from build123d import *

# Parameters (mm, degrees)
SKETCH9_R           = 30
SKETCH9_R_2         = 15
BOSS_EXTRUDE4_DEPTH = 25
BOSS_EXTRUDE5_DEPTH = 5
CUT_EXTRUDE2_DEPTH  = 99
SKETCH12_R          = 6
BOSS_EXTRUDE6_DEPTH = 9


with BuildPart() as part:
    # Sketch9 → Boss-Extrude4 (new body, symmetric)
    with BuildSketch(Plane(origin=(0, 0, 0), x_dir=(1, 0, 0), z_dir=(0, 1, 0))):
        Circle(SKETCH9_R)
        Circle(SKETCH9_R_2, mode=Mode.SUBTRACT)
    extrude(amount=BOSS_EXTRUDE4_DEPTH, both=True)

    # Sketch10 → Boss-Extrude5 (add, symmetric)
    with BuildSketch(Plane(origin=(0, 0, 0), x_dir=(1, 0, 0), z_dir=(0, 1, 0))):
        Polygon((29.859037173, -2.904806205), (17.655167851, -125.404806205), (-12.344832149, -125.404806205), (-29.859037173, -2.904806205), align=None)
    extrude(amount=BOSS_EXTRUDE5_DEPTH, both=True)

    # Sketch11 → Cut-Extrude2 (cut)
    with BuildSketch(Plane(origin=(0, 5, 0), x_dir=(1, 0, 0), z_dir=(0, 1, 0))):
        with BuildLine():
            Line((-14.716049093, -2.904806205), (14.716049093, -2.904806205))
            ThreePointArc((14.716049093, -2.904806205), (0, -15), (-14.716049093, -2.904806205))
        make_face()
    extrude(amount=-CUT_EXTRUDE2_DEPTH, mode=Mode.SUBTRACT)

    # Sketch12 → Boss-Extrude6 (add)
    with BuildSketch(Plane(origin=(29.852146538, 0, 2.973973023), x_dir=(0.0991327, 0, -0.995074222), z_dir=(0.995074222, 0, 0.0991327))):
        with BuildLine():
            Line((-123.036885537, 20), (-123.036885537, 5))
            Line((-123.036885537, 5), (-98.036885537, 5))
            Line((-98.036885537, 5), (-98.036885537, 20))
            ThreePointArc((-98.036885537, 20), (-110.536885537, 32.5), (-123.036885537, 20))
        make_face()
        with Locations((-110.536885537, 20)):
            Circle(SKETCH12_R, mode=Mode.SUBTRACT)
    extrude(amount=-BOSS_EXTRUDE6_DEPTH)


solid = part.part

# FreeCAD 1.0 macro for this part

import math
import FreeCAD as App
import Part
import Sketcher

V = App.Vector
Q = App.Units.Quantity


def add_polygon(sketch, points):
    """Adds a closed chain of lines whose ends are joined by coincident constraints."""
    first, n = sketch.GeometryCount, len(points)
    for a, b in zip(points, points[1:] + points[:1]):
        sketch.addGeometry(Part.LineSegment(App.Vector(*a, 0), App.Vector(*b, 0)), False)
    for i in range(n):
        sketch.addConstraint(Sketcher.Constraint("Coincident", first + i, 2, first + (i + 1) % n, 1))

doc = App.newDocument("Part")
params = doc.addObject("Spreadsheet::Sheet", "Params")
for row, (alias, value) in enumerate([
    ("sketch1_diameter", "60 mm"),
    ("sketch1_diameter2", "30 mm"),
    ("pad1_length", "50 mm"),
    ("sketch2_width", "30 mm"),
    ("pad2_length", "10 mm"),
    ("sketch3_radius", "15 mm"),
    ("pocket1_length", "99 mm"),
    ("sketch4_diameter", "12 mm"),
    ("sketch4_radius", "12.5 mm"),
    ("sketch4_height", "15 mm"),
    ("pad3_length", "9 mm"),
], start=1):
    params.set(f"A{row}", alias)
    params.set(f"B{row}", "=" + value)
    params.setAlias(f"B{row}", alias)

body = doc.addObject("PartDesign::Body", "Body")

sketch1 = body.newObject("Sketcher::SketchObject", "Sketch")
sketch1.AttachmentSupport = (doc.getObject("XZ_Plane"), [""])
sketch1.MapMode = "FlatFace"
sketch1.addGeometry([
    Part.Circle(V(0, 0, 0), V(0, 0, 1), 30),
    Part.Circle(V(0, 0, 0), V(0, 0, 1), 15),
], False)
sketch1.addConstraint([
    Sketcher.Constraint("Coincident", 0, 3, -1, 1),
    Sketcher.Constraint("Coincident", 1, 3, -1, 1),
    Sketcher.Constraint("Diameter", 0, Q("60 mm")),
    Sketcher.Constraint("Diameter", 1, Q("30 mm")),
])
sketch1.setExpression("Constraints[2]", "Params.sketch1_diameter")
sketch1.setExpression("Constraints[3]", "Params.sketch1_diameter2")
pad1 = body.newObject("PartDesign::Pad", "Pad")
pad1.Profile = sketch1
pad1.setExpression("Length", "Params.pad1_length")
pad1.Midplane = True

sketch2 = body.newObject("Sketcher::SketchObject", "Sketch001")
sketch2.AttachmentSupport = (doc.getObject("XZ_Plane"), [""])
sketch2.MapMode = "FlatFace"
add_polygon(sketch2, [(18, 125), (30, 3), (-30, 3), (-12, 125)])
sketch2.addConstraint([
    Sketcher.Constraint("Horizontal", 1),
    Sketcher.Constraint("Horizontal", 3),
    Sketcher.Constraint("DistanceX", 3, 1, 3, 2, Q("30 mm")),
    Sketcher.Constraint("DistanceY", 1, 2, 2, 2, Q("122.5 mm")),
    Sketcher.Constraint("DistanceX", 1, 2, 1, 1, Q("59.718074 mm")),
    Sketcher.Constraint("DistanceX", 2, 2, 0, 2, Q("42.203869 mm")),
    Sketcher.Constraint("DistanceX", -1, 1, 0, 2, Q("29.859037 mm")),
    Sketcher.Constraint("DistanceY", -1, 1, 0, 2, Q("2.904806 mm")),
])
sketch2.setExpression("Constraints[6]", "Params.sketch2_width")
pad2 = body.newObject("PartDesign::Pad", "Pad001")
pad2.Profile = sketch2
pad2.setExpression("Length", "Params.pad2_length")
pad2.Midplane = True

sketch3 = body.newObject("Sketcher::SketchObject", "Sketch002")
sketch3.AttachmentSupport = (doc.getObject("XZ_Plane"), [""])
sketch3.MapMode = "FlatFace"
sketch3.AttachmentOffset = App.Placement(V(0, 0, -5), App.Rotation())
sketch3.addGeometry([
    Part.LineSegment(V(15, 3, 0), V(-15, 3, 0)),
    Part.ArcOfCircle(Part.Circle(V(0, 0, 0), V(0, 0, 1), 15), math.radians(11), math.radians(169)),
], False)
sketch3.addConstraint([
    Sketcher.Constraint("Coincident", 0, 1, 1, 1),
    Sketcher.Constraint("Coincident", 1, 2, 0, 2),
    Sketcher.Constraint("Horizontal", 0),
    Sketcher.Constraint("Coincident", 1, 3, -1, 1),
    Sketcher.Constraint("Radius", 1, Q("15 mm")),
    Sketcher.Constraint("DistanceX", 0, 2, 0, 1, Q("29.432098 mm")),
])
sketch3.setExpression("Constraints[4]", "Params.sketch3_radius")
pocket1 = body.newObject("PartDesign::Pocket", "Pocket")
pocket1.Profile = sketch3
pocket1.setExpression("Length", "Params.pocket1_length")
pocket1.Reversed = True

sketch4 = body.newObject("Sketcher::SketchObject", "Sketch003")
sketch4.Placement = App.Placement(V(29.852147, 0, 2.973973), App.Rotation(V(0.0991327, 0, -0.995074222), V(0, 0.999999999, 0), V(0.995074222, 0, 0.0991327), "ZXY"))
sketch4.addGeometry([
    Part.LineSegment(V(-123, 20, 0), V(-123, 5, 0)),
    Part.LineSegment(V(-123, 5, 0), V(-98, 5, 0)),
    Part.LineSegment(V(-98, 5, 0), V(-98, 20, 0)),
    Part.ArcOfCircle(Part.Circle(V(-111, 20, 0), V(0, 0, 1), 12), math.radians(0), math.radians(180)),
    Part.Circle(V(-111, 20, 0), V(0, 0, 1), 6),
], False)
sketch4.addConstraint([
    Sketcher.Constraint("Coincident", 0, 2, 1, 1),
    Sketcher.Constraint("Coincident", 1, 2, 2, 1),
    Sketcher.Constraint("Tangent", 2, 2, 3, 1),
    Sketcher.Constraint("Tangent", 3, 2, 0, 1),
    Sketcher.Constraint("Vertical", 0),
    Sketcher.Constraint("Horizontal", 1),
    Sketcher.Constraint("Vertical", 2),
    Sketcher.Constraint("Coincident", 4, 3, 3, 3),
    Sketcher.Constraint("Diameter", 4, Q("12 mm")),
    Sketcher.Constraint("Radius", 3, Q("12.5 mm")),
    Sketcher.Constraint("DistanceY", 0, 2, 0, 1, Q("15 mm")),
    Sketcher.Constraint("DistanceY", -1, 1, 3, 3, Q("20 mm")),
    Sketcher.Constraint("DistanceX", 3, 3, -1, 1, Q("110.536885 mm")),
])
sketch4.setExpression("Constraints[8]", "Params.sketch4_diameter")
sketch4.setExpression("Constraints[9]", "Params.sketch4_radius")
sketch4.setExpression("Constraints[10]", "Params.sketch4_height")
pad3 = body.newObject("PartDesign::Pad", "Pad002")
pad3.Profile = sketch4
pad3.setExpression("Length", "Params.pad3_length")
pad3.Reversed = True

doc.recompute()
